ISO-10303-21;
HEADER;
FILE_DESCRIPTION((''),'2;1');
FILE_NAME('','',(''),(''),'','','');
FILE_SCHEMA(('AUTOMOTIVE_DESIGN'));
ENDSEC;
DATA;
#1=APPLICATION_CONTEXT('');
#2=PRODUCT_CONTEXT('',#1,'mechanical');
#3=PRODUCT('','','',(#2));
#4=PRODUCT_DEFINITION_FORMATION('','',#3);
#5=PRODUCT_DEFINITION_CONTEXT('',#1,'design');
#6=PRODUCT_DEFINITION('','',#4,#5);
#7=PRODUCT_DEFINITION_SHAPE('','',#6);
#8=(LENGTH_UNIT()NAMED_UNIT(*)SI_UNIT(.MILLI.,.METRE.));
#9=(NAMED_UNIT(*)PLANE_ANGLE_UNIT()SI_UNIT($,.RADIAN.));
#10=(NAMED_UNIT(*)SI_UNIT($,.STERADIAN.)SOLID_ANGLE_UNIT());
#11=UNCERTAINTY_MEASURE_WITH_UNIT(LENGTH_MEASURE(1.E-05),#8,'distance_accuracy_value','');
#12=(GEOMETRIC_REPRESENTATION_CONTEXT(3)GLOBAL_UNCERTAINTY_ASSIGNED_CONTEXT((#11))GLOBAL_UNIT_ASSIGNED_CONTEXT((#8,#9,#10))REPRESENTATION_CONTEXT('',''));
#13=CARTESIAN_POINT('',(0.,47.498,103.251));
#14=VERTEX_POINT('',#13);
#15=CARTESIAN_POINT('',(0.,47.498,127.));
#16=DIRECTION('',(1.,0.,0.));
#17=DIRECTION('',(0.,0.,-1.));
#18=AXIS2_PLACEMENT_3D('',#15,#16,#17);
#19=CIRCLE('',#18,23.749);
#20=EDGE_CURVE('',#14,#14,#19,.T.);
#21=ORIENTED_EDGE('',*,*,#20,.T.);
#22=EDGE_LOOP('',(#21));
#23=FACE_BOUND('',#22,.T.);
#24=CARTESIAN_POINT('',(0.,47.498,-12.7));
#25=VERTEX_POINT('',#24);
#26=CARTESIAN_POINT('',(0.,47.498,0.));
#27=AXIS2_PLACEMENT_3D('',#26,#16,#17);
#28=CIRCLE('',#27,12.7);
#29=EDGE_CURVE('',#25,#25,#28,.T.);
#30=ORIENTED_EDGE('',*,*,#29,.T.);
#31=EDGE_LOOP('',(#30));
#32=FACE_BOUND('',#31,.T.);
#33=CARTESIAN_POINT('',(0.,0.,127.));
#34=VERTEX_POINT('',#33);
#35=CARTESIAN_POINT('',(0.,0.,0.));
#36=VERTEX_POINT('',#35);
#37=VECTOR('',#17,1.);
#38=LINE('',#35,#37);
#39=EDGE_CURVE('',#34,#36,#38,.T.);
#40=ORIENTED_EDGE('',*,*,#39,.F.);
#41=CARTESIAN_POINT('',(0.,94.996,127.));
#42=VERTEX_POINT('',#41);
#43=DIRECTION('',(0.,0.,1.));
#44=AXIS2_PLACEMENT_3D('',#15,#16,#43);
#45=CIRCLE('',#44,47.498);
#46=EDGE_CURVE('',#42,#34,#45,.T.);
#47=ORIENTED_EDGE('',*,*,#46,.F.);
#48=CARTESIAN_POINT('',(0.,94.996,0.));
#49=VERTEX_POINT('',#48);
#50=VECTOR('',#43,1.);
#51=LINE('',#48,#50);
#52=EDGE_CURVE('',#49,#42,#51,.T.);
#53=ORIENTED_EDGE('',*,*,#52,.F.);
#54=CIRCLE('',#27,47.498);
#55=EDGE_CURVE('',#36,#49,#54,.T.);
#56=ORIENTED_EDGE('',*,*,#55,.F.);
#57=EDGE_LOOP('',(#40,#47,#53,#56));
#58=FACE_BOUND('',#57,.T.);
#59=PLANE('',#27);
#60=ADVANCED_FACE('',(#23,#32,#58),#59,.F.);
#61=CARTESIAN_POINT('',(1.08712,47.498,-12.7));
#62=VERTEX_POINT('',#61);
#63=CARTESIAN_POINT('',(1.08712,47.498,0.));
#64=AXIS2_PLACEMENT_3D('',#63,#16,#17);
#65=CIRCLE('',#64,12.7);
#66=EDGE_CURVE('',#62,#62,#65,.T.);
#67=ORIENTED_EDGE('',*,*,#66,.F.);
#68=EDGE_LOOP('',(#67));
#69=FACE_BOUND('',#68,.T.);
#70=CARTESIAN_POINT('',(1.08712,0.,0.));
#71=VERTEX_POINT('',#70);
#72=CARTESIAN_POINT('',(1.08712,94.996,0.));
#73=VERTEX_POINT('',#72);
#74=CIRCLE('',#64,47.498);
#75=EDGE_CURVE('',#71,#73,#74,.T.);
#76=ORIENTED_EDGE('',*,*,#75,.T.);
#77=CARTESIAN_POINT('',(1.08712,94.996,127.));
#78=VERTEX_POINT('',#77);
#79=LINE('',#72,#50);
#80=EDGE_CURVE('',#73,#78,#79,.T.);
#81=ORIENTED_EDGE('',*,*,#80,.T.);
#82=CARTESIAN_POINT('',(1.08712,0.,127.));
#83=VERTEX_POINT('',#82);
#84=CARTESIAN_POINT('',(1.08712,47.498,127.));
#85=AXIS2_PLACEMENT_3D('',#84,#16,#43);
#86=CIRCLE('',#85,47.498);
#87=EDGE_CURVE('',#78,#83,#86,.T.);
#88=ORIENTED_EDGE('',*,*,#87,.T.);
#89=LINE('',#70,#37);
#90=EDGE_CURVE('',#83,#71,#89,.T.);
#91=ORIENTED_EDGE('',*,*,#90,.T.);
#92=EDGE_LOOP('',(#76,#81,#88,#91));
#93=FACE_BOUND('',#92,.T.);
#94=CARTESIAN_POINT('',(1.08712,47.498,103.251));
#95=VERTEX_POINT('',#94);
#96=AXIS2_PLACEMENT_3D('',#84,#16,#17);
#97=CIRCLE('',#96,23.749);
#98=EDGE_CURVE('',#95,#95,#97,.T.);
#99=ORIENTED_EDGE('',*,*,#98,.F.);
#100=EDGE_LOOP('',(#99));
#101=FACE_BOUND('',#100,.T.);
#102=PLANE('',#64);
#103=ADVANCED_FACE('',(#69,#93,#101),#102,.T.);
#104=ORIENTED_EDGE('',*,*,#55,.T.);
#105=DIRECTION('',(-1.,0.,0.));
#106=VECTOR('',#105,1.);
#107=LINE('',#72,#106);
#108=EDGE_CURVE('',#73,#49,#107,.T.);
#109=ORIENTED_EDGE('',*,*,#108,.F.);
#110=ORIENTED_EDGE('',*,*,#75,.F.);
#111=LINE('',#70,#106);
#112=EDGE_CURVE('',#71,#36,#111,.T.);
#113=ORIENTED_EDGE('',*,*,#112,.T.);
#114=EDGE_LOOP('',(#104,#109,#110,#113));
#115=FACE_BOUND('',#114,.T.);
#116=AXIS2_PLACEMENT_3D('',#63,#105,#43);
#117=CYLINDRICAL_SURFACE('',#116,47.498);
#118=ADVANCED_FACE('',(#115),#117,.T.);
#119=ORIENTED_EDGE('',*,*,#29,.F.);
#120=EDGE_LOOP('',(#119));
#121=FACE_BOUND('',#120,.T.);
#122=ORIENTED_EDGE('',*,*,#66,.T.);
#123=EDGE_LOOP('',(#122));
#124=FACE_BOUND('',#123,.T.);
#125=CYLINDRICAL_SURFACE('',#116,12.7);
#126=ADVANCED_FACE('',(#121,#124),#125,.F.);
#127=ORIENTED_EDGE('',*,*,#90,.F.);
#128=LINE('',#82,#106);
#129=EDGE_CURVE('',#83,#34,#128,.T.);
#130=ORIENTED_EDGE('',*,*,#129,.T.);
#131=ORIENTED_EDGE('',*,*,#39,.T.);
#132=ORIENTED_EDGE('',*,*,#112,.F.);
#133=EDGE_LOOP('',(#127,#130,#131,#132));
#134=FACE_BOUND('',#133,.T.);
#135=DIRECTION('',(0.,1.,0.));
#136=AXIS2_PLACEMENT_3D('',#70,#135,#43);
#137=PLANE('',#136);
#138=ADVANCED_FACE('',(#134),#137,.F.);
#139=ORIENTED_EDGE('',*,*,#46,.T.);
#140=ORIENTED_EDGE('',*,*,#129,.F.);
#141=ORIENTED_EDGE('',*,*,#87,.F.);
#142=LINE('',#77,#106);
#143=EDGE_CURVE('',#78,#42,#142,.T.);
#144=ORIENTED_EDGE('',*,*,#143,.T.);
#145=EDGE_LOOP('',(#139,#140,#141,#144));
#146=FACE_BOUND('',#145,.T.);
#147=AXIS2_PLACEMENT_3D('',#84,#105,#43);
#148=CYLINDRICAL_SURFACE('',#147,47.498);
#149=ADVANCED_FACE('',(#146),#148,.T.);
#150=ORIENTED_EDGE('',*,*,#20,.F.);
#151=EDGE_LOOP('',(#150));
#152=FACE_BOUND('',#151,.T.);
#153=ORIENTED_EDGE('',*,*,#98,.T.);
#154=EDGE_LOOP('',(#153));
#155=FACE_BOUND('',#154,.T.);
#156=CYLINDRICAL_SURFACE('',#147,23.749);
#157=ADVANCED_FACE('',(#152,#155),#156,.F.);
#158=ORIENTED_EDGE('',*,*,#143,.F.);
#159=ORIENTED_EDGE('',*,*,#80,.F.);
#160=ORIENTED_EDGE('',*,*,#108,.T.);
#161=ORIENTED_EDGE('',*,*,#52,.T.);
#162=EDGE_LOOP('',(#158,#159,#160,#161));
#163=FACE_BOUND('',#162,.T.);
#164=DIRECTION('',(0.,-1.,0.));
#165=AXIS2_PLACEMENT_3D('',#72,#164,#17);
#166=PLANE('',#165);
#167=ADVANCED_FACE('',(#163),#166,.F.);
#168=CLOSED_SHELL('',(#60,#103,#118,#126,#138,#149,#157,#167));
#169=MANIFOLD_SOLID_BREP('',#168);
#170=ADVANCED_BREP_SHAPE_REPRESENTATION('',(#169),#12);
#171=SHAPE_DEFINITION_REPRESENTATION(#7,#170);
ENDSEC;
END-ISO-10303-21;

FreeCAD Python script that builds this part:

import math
import FreeCAD as App
import Part
import Sketcher
from FreeCAD import Vector
Q = App.Units.Quantity

doc = App.newDocument("Part")
body = doc.addObject("PartDesign::Body", "Body")

# Sketch on YZ plane
sketch1 = body.newObject("Sketcher::SketchObject", "Sketch")
sketch1.AttachmentSupport = (doc.getObject("YZ_Plane"), [""])
sketch1.MapMode = "FlatFace"
sketch1.addGeometry([
    Part.LineSegment(Vector(0, 127, 0), Vector(0, 0, 0)),  # 0
    Part.ArcOfCircle(Part.Circle(Vector(47.498, 0, 0), Vector(0, 0, 1), 47.498), math.radians(180), math.radians(360)),  # 1
    Part.LineSegment(Vector(94.996, 0, 0), Vector(94.996, 127, 0)),  # 2
    Part.ArcOfCircle(Part.Circle(Vector(47.498, 127, 0), Vector(0, 0, 1), 47.498), math.radians(0), math.radians(180)),  # 3
    Part.Circle(Vector(47.498, 0, 0), Vector(0, 0, 1), 12.7),  # 4
    Part.Circle(Vector(47.498, 127, 0), Vector(0, 0, 1), 23.749),  # 5
], False)
sketch1.addConstraint([
    Sketcher.Constraint("Tangent", 0, 2, 1, 1),
    Sketcher.Constraint("Tangent", 1, 2, 2, 1),
    Sketcher.Constraint("Tangent", 2, 2, 3, 1),
    Sketcher.Constraint("Tangent", 3, 2, 0, 1),
    Sketcher.Constraint("Vertical", 0),
    Sketcher.Constraint("Vertical", 2),
    Sketcher.Constraint("Coincident", 0, 2, -1, 1),
    Sketcher.Constraint("Coincident", 4, 3, 1, 3),
    Sketcher.Constraint("Coincident", 5, 3, 3, 3),
    Sketcher.Constraint("Diameter", 4, Q("1 in")),
    Sketcher.Constraint("Diameter", 5, Q("1.87 in")),
    Sketcher.Constraint("DistanceY", 0, 2, 0, 1, Q("5 in")),
    Sketcher.Constraint("Radius", 1, Q("1.87 in")),
])
pad1 = body.newObject("PartDesign::Pad", "Pad")
pad1.Profile = sketch1
pad1.Length = Q("0.0428 in")

doc.recompute()
